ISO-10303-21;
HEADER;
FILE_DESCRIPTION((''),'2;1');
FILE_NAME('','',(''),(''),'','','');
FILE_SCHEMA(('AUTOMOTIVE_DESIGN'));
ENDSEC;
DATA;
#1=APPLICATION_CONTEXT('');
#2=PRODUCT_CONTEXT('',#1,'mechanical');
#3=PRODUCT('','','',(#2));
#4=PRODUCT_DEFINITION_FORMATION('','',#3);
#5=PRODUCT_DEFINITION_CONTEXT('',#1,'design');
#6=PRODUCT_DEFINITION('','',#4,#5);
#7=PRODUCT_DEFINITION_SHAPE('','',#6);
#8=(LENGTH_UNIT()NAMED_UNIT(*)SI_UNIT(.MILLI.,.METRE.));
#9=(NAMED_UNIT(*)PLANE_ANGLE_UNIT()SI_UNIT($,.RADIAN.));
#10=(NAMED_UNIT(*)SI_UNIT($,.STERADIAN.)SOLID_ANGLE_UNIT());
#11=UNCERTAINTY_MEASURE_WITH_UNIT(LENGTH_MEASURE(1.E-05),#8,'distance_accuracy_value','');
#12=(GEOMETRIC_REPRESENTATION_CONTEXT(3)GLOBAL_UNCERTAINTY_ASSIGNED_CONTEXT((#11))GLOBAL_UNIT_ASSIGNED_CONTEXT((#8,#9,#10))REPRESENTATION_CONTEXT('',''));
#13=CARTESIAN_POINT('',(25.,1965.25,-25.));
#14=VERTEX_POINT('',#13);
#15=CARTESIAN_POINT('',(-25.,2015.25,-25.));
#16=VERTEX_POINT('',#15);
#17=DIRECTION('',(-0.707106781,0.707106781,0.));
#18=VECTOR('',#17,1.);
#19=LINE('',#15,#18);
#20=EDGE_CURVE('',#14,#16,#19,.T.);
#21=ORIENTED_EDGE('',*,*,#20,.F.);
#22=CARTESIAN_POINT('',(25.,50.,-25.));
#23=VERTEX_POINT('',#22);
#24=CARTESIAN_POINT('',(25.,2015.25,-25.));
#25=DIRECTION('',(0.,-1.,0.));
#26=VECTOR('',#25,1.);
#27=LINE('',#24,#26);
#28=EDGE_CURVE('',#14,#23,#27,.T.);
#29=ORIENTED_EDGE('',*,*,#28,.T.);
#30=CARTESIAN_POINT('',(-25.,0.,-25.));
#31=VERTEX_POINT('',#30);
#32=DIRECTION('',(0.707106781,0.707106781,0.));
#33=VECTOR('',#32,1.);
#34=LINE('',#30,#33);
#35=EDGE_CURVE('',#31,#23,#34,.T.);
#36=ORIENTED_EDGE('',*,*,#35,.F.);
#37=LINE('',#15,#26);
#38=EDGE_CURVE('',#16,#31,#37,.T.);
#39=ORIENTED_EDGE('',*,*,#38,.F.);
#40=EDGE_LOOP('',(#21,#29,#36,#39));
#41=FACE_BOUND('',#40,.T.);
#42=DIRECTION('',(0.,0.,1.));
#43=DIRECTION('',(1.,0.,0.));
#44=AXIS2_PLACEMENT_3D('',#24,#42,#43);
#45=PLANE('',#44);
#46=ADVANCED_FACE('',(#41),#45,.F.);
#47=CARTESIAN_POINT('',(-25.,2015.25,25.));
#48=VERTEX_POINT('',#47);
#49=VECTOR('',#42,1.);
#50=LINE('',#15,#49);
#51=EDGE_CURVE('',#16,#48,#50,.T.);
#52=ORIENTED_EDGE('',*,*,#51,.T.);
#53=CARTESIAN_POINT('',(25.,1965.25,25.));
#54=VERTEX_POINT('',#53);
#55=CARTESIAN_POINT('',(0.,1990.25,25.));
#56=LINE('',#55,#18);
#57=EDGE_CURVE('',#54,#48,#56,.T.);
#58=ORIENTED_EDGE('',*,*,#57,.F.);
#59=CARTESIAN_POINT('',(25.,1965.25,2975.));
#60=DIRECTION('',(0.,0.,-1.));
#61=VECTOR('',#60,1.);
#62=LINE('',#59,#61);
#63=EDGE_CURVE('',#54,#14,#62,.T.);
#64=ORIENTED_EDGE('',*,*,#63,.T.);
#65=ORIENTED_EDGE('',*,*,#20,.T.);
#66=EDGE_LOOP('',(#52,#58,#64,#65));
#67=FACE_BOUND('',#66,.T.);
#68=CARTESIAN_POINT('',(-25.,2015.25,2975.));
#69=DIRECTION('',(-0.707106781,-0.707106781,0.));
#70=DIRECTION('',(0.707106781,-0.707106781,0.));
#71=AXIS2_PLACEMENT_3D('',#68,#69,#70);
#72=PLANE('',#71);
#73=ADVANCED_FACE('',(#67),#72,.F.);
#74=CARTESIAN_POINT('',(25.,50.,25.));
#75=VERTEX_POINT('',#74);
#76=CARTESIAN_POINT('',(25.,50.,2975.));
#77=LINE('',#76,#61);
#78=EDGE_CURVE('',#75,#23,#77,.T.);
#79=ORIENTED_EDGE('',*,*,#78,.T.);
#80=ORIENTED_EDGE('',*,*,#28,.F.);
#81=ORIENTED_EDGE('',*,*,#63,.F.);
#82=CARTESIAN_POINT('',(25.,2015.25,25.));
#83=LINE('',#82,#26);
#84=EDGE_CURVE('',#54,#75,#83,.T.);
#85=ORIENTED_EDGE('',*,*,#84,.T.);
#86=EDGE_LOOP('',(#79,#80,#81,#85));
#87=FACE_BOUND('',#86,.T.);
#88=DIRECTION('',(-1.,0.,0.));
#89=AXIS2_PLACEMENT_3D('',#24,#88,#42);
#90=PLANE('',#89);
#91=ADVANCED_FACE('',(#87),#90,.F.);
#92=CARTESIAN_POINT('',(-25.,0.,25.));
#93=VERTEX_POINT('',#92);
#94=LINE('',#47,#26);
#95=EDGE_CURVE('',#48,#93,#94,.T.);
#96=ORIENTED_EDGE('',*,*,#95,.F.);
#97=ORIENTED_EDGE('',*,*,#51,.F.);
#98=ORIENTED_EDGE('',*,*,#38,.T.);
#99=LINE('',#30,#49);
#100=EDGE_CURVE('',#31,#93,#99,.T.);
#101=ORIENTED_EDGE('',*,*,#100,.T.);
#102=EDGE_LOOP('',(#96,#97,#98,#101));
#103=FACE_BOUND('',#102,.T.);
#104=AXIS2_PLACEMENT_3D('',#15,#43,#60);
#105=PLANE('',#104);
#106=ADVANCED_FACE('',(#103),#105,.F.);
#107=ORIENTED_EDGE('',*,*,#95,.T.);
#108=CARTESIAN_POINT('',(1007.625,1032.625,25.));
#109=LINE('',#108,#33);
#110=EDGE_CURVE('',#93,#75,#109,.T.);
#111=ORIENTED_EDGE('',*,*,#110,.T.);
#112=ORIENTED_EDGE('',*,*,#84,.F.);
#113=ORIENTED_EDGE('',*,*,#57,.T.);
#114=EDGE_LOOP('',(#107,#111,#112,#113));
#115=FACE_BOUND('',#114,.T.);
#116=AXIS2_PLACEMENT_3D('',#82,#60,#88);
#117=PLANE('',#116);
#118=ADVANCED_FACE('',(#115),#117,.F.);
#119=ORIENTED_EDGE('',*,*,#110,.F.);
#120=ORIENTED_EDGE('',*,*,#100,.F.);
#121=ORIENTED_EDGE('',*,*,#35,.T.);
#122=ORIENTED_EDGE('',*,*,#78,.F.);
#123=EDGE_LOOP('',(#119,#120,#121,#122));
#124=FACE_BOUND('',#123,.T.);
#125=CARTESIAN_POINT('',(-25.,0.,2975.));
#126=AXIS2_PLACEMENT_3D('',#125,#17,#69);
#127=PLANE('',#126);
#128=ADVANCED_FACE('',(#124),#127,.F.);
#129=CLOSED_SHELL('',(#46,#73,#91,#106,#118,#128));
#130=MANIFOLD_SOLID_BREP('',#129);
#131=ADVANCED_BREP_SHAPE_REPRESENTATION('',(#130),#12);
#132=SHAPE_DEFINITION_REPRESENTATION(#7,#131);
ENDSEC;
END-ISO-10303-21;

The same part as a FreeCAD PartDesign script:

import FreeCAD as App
import Part
import Sketcher
from FreeCAD import Vector

doc = App.newDocument("Part")
body = doc.addObject("PartDesign::Body", "Body")

# Sketch on XZ plane
sketch1 = doc.addObject("Sketcher::SketchObject", "Sketch")
body.addObject(sketch1)
sketch1.AttachmentSupport = (doc.XZ_Plane, [""])
sketch1.MapMode = "FlatFace"
sketch1.addGeometry([
    Part.LineSegment(Vector(-25, -25, 0), Vector(-25, 25, 0)),
    Part.LineSegment(Vector(-25, 25, 0), Vector(25, 25, 0)),
    Part.LineSegment(Vector(25, 25, 0), Vector(25, -25, 0)),
    Part.LineSegment(Vector(25, -25, 0), Vector(-25, -25, 0)),
], False)
sketch1.addConstraint([
    Sketcher.Constraint("Coincident", 0, 2, 1, 1),
    Sketcher.Constraint("Coincident", 1, 2, 2, 1),
    Sketcher.Constraint("Coincident", 2, 2, 3, 1),
    Sketcher.Constraint("Coincident", 3, 2, 0, 1),
    Sketcher.Constraint("Vertical", 0),
    Sketcher.Constraint("Horizontal", 1),
    Sketcher.Constraint("Vertical", 2),
    Sketcher.Constraint("Horizontal", 3),
    Sketcher.Constraint("Symmetric", 0, 2, 2, 2, -1, 1),
    Sketcher.Constraint("Equal", 3, 0),
    Sketcher.Constraint("DistanceX", 1, 1, 1, 2, 50.0),
])
pad1 = doc.addObject("PartDesign::Pad", "Pad")
body.addObject(pad1)
pad1.Profile = sketch1
pad1.Length = 2015.25
pad1.Reversed = True

# Sketch on XY plane
sketch2 = doc.addObject("Sketcher::SketchObject", "Sketch001")
body.addObject(sketch2)
sketch2.AttachmentSupport = (doc.XY_Plane, [""])
sketch2.MapMode = "FlatFace"
sketch2.AttachmentOffset = App.Placement(Vector(0, 0, -25), App.Rotation())
sketch2.addGeometry([
    Part.LineSegment(Vector(25, 0, 0), Vector(-25, 0, 0)),  # 0
    Part.LineSegment(Vector(-25, 0, 0), Vector(25, 50, 0)),  # 1
    Part.LineSegment(Vector(25, 50, 0), Vector(25, 0, 0)),  # 2
    Part.LineSegment(Vector(-25, 2015, 0), Vector(25, 2015, 0)),  # 3
    Part.LineSegment(Vector(25, 2015, 0), Vector(25, 1965, 0)),  # 4
    Part.LineSegment(Vector(25, 1965, 0), Vector(-25, 2015, 0)),  # 5
], False)
sketch2.addConstraint([
    Sketcher.Constraint("Coincident", 0, 2, 1, 1),
    Sketcher.Constraint("Coincident", 1, 2, 2, 1),
    Sketcher.Constraint("Coincident", 2, 2, 0, 1),
    Sketcher.Constraint("Coincident", 3, 2, 4, 1),
    Sketcher.Constraint("Coincident", 4, 2, 5, 1),
    Sketcher.Constraint("Coincident", 5, 2, 3, 1),
    Sketcher.Constraint("Horizontal", 0),
    Sketcher.Constraint("Vertical", 2),
    Sketcher.Constraint("Horizontal", 3),
    Sketcher.Constraint("Vertical", 4),
    Sketcher.Constraint("Symmetric", 0, 2, 2, 2, -1, 1),
    Sketcher.Constraint("Perpendicular", 1, 5),
    Sketcher.Constraint("Vertical", 2, 2, 3, 2),
    Sketcher.Constraint("Vertical", 0, 2, 5, 2),
    Sketcher.Constraint("Equal", 3, 2),
    Sketcher.Constraint("DistanceX", 0, 2, 0, 1, 50.0),
    Sketcher.Constraint("DistanceY", -1, 1, 3, 2, 2015.25),
])
pocket1 = doc.addObject("PartDesign::Pocket", "Pocket")
body.addObject(pocket1)
pocket1.Profile = sketch2
pocket1.Length = 3000
pocket1.Reversed = True

doc.recompute()
